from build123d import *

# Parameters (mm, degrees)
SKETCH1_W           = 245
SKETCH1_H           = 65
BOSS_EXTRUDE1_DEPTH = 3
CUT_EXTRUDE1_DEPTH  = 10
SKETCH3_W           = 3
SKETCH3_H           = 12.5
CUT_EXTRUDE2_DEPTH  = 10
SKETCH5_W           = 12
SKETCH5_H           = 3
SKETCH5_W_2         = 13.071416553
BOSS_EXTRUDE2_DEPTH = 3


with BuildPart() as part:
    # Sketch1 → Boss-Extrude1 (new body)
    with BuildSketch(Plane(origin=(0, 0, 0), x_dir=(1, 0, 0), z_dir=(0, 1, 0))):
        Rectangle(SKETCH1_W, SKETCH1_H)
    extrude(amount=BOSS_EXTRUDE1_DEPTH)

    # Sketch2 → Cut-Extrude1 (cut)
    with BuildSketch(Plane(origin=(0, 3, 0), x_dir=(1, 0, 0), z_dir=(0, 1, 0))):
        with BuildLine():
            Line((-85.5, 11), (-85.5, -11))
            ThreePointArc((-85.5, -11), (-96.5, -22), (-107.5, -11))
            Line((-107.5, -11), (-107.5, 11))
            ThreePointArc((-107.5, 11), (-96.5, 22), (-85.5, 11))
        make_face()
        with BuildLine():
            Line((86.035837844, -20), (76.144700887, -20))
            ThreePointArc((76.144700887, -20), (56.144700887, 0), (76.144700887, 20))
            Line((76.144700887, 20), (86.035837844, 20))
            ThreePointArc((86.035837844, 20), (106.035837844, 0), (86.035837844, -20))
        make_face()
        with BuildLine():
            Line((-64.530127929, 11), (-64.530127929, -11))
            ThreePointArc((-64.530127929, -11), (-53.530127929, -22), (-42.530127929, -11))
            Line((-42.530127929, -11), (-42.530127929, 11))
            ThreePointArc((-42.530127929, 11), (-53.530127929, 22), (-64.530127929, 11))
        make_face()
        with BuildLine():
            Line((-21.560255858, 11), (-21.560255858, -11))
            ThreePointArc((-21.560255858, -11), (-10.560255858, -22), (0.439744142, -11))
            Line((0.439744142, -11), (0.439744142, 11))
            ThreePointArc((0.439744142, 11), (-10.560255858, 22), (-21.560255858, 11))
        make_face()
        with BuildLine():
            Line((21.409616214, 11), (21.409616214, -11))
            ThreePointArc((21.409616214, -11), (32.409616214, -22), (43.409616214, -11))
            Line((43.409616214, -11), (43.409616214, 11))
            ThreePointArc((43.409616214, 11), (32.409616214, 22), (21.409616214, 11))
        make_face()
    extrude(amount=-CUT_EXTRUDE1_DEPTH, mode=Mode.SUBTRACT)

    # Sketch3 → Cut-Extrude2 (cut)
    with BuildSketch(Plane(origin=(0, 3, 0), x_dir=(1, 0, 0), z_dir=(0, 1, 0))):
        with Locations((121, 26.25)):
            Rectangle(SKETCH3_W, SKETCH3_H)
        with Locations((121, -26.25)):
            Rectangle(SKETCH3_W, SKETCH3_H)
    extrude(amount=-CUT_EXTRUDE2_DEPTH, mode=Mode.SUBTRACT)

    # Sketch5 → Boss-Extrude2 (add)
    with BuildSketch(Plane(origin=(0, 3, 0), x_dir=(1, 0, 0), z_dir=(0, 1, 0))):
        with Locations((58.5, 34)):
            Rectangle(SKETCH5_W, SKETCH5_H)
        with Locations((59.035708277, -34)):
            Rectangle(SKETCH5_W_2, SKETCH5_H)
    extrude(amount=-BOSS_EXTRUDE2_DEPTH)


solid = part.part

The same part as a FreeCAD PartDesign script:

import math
import FreeCAD as App
import Part
import Sketcher
Q = App.Units.Quantity


def add_polygon(sketch, points):
    """Adds a closed chain of lines whose ends are joined by coincident constraints."""
    first, n = sketch.GeometryCount, len(points)
    for a, b in zip(points, points[1:] + points[:1]):
        sketch.addGeometry(Part.LineSegment(App.Vector(*a, 0), App.Vector(*b, 0)), False)
    for i in range(n):
        sketch.addConstraint(Sketcher.Constraint("Coincident", first + i, 2, first + (i + 1) % n, 1))

doc = App.newDocument("Part")
body = doc.addObject("PartDesign::Body", "Body")

sketch1 = body.newObject("Sketcher::SketchObject", "Sketch")
sketch1.AttachmentSupport = (doc.getObject("XZ_Plane"), [""])
sketch1.MapMode = "FlatFace"
add_polygon(sketch1, [(-122.5, -32.5), (-122.5, 32.5), (122.5, 32.5), (122.5, -32.5)])
sketch1.addConstraint([
    Sketcher.Constraint("Vertical", 0),
    Sketcher.Constraint("Horizontal", 1),
    Sketcher.Constraint("Vertical", 2),
    Sketcher.Constraint("Horizontal", 3),
    Sketcher.Constraint("Symmetric", 0, 2, 2, 2, -1, 1),
    Sketcher.Constraint("DistanceX", 1, 1, 1, 2, Q("245 mm")),
    Sketcher.Constraint("DistanceY", 0, 1, 0, 2, Q("65 mm")),
])
pad1 = body.newObject("PartDesign::Pad", "Pad")
pad1.Profile = sketch1
pad1.Length = 3
pad1.Reversed = True

sketch2 = body.newObject("Sketcher::SketchObject", "Sketch001")
sketch2.AttachmentSupport = (doc.getObject("XZ_Plane"), [""])
sketch2.MapMode = "FlatFace"
sketch2.AttachmentOffset = App.Placement(App.Vector(0, 0, -3), App.Rotation())
sketch2.addGeometry([
    Part.LineSegment(App.Vector(-85.5, 11, 0), App.Vector(-85.5, -11, 0)),
    Part.ArcOfCircle(Part.Circle(App.Vector(-96.5, -11, 0), App.Vector(0, 0, 1), 11), math.radians(180), math.radians(360)),
    Part.LineSegment(App.Vector(-107.5, -11, 0), App.Vector(-107.5, 11, 0)),
    Part.ArcOfCircle(Part.Circle(App.Vector(-96.5, 11, 0), App.Vector(0, 0, 1), 11), math.radians(0), math.radians(180)),
    Part.LineSegment(App.Vector(76.144701, 20, 0), App.Vector(86.035838, 20, 0)),
    Part.ArcOfCircle(Part.Circle(App.Vector(86.035838, 0, 0), App.Vector(0, 0, 1), 20), math.radians(-90), math.radians(90)),
    Part.LineSegment(App.Vector(86.035838, -20, 0), App.Vector(76.144701, -20, 0)),
    Part.ArcOfCircle(Part.Circle(App.Vector(76.144701, 0, 0), App.Vector(0, 0, 1), 20), math.radians(90), math.radians(270)),
    Part.LineSegment(App.Vector(-64.530128, -11, 0), App.Vector(-64.530128, 11, 0)),
    Part.ArcOfCircle(Part.Circle(App.Vector(-53.530128, 11, 0), App.Vector(0, 0, 1), 11), math.radians(0), math.radians(180)),
    Part.LineSegment(App.Vector(-42.530128, 11, 0), App.Vector(-42.530128, -11, 0)),
    Part.ArcOfCircle(Part.Circle(App.Vector(-53.530128, -11, 0), App.Vector(0, 0, 1), 11), math.radians(180), math.radians(360)),
    Part.LineSegment(App.Vector(-21.560256, -11, 0), App.Vector(-21.560256, 11, 0)),
    Part.ArcOfCircle(Part.Circle(App.Vector(-10.560256, 11, 0), App.Vector(0, 0, 1), 11), math.radians(0), math.radians(180)),
    Part.LineSegment(App.Vector(0.439744, 11, 0), App.Vector(0.439744, -11, 0)),
    Part.ArcOfCircle(Part.Circle(App.Vector(-10.560256, -11, 0), App.Vector(0, 0, 1), 11), math.radians(180), math.radians(360)),
    Part.LineSegment(App.Vector(21.409616, -11, 0), App.Vector(21.409616, 11, 0)),
    Part.ArcOfCircle(Part.Circle(App.Vector(32.409616, 11, 0), App.Vector(0, 0, 1), 11), math.radians(0), math.radians(180)),
    Part.LineSegment(App.Vector(43.409616, 11, 0), App.Vector(43.409616, -11, 0)),
    Part.ArcOfCircle(Part.Circle(App.Vector(32.409616, -11, 0), App.Vector(0, 0, 1), 11), math.radians(180), math.radians(360)),
], False)
sketch2.addConstraint([
    Sketcher.Constraint("Tangent", 0, 2, 1, 2),
    Sketcher.Constraint("Tangent", 1, 1, 2, 1),
    Sketcher.Constraint("Tangent", 2, 2, 3, 2),
    Sketcher.Constraint("Tangent", 3, 1, 0, 1),
    Sketcher.Constraint("Tangent", 4, 2, 5, 2),
    Sketcher.Constraint("Tangent", 5, 1, 6, 1),
    Sketcher.Constraint("Tangent", 6, 2, 7, 2),
    Sketcher.Constraint("Tangent", 7, 1, 4, 1),
    Sketcher.Constraint("Tangent", 8, 2, 9, 2),
    Sketcher.Constraint("Tangent", 9, 1, 10, 1),
    Sketcher.Constraint("Tangent", 10, 2, 11, 2),
    Sketcher.Constraint("Tangent", 11, 1, 8, 1),
    Sketcher.Constraint("Tangent", 12, 2, 13, 2),
    Sketcher.Constraint("Tangent", 13, 1, 14, 1),
    Sketcher.Constraint("Tangent", 14, 2, 15, 2),
    Sketcher.Constraint("Tangent", 15, 1, 12, 1),
    Sketcher.Constraint("Tangent", 16, 2, 17, 2),
    Sketcher.Constraint("Tangent", 17, 1, 18, 1),
    Sketcher.Constraint("Tangent", 18, 2, 19, 2),
    Sketcher.Constraint("Tangent", 19, 1, 16, 1),
    Sketcher.Constraint("Vertical", 0),
    Sketcher.Constraint("Vertical", 2),
    Sketcher.Constraint("Horizontal", 4),
    Sketcher.Constraint("Horizontal", 6),
    Sketcher.Constraint("Vertical", 8),
    Sketcher.Constraint("Vertical", 10),
    Sketcher.Constraint("Vertical", 12),
    Sketcher.Constraint("Vertical", 14),
    Sketcher.Constraint("Vertical", 16),
    Sketcher.Constraint("Vertical", 18),
    Sketcher.Constraint("Equal", 3, 9),
    Sketcher.Constraint("Equal", 11, 13),
    Sketcher.Constraint("Equal", 15, 17),
    Sketcher.Constraint("PointOnObject", 5, 3, -1),
    Sketcher.Constraint("Horizontal", 3, 3, 9, 3),
    Sketcher.Constraint("Horizontal", 1, 3, 11, 3),
    Sketcher.Constraint("Horizontal", 9, 3, 13, 3),
    Sketcher.Constraint("Horizontal", 11, 3, 15, 3),
    Sketcher.Constraint("Horizontal", 13, 3, 17, 3),
    Sketcher.Constraint("Horizontal", 15, 3, 19, 3),
    Sketcher.Constraint("Radius", 1, Q("11 mm")),
    Sketcher.Constraint("Radius", 5, Q("20 mm")),
    Sketcher.Constraint("DistanceY", 0, 2, 0, 1, Q("22 mm")),
    Sketcher.Constraint("DistanceY", 1, 3, -1, 1, Q("11 mm")),
    Sketcher.Constraint("DistanceX", 1, 3, -1, 1, Q("96.5 mm")),
    Sketcher.Constraint("DistanceX", -1, 1, 7, 3, Q("76.144701 mm")),
    Sketcher.Constraint("DistanceX", 4, 1, 4, 2, Q("9.891137 mm")),
    Sketcher.Constraint("DistanceX", 9, 3, 7, 3, Q("129.674829 mm")),
    Sketcher.Constraint("DistanceX", 17, 3, 5, 3, Q("53.626222 mm")),
    Sketcher.Constraint("DistanceX", 13, 3, -1, 1, Q("10.560256 mm")),
])
pocket1 = body.newObject("PartDesign::Pocket", "Pocket")
pocket1.Profile = sketch2
pocket1.Length = 10
pocket1.Reversed = True

sketch3 = body.newObject("Sketcher::SketchObject", "Sketch002")
sketch3.AttachmentSupport = (doc.getObject("XZ_Plane"), [""])
sketch3.MapMode = "FlatFace"
sketch3.AttachmentOffset = App.Placement(App.Vector(0, 0, -3), App.Rotation())
add_polygon(sketch3, [(119.5, -32.5), (119.5, -20), (122.5, -20), (122.5, -32.5)])
add_polygon(sketch3, [(119.5, 20), (119.5, 32.5), (122.5, 32.5), (122.5, 20)])
sketch3.addConstraint([
    Sketcher.Constraint("Vertical", 0),
    Sketcher.Constraint("Horizontal", 1),
    Sketcher.Constraint("Vertical", 2),
    Sketcher.Constraint("Horizontal", 3),
    Sketcher.Constraint("Vertical", 4),
    Sketcher.Constraint("Horizontal", 5),
    Sketcher.Constraint("Vertical", 6),
    Sketcher.Constraint("Horizontal", 7),
    Sketcher.Constraint("Symmetric", 3, 2, 4, 2, -1),
    Sketcher.Constraint("Symmetric", 1, 2, 6, 2, -1),
    Sketcher.Constraint("DistanceX", 1, 1, 1, 2, Q("3 mm")),
    Sketcher.Constraint("DistanceY", 0, 1, 0, 2, Q("12.5 mm")),
    Sketcher.Constraint("DistanceY", 0, 2, -1, 1, Q("20 mm")),
    Sketcher.Constraint("DistanceX", -1, 1, 0, 2, Q("119.5 mm")),
])
pocket2 = body.newObject("PartDesign::Pocket", "Pocket001")
pocket2.Profile = sketch3
pocket2.Length = 10
pocket2.Reversed = True

sketch4 = body.newObject("Sketcher::SketchObject", "Sketch003")
sketch4.AttachmentSupport = (doc.getObject("XZ_Plane"), [""])
sketch4.MapMode = "FlatFace"
sketch4.AttachmentOffset = App.Placement(App.Vector(0, 0, -3), App.Rotation())
add_polygon(sketch4, [(52.5, -35.5), (52.5, -32.5), (64.5, -32.5), (64.5, -35.5)])
add_polygon(sketch4, [(52.5, 32.5), (52.5, 35.5), (65.571417, 35.5), (65.571417, 32.5)])
sketch4.addConstraint([
    Sketcher.Constraint("Vertical", 0),
    Sketcher.Constraint("Horizontal", 1),
    Sketcher.Constraint("Vertical", 2),
    Sketcher.Constraint("Horizontal", 3),
    Sketcher.Constraint("Vertical", 4),
    Sketcher.Constraint("Horizontal", 5),
    Sketcher.Constraint("Vertical", 6),
    Sketcher.Constraint("Horizontal", 7),
    Sketcher.Constraint("Symmetric", 3, 2, 4, 2, -1),
    Sketcher.Constraint("Equal", 2, 4),
    Sketcher.Constraint("DistanceX", 1, 1, 1, 2, Q("12 mm")),
    Sketcher.Constraint("DistanceY", 0, 1, 0, 2, Q("3 mm")),
    Sketcher.Constraint("DistanceY", 0, 2, 4, 2, Q("68 mm")),
    Sketcher.Constraint("DistanceX", -1, 1, 0, 2, Q("52.5 mm")),
    Sketcher.Constraint("DistanceX", 5, 1, 5, 2, Q("13.071417 mm")),
])
pad2 = body.newObject("PartDesign::Pad", "Pad001")
pad2.Profile = sketch4
pad2.Length = 3

doc.recompute()
